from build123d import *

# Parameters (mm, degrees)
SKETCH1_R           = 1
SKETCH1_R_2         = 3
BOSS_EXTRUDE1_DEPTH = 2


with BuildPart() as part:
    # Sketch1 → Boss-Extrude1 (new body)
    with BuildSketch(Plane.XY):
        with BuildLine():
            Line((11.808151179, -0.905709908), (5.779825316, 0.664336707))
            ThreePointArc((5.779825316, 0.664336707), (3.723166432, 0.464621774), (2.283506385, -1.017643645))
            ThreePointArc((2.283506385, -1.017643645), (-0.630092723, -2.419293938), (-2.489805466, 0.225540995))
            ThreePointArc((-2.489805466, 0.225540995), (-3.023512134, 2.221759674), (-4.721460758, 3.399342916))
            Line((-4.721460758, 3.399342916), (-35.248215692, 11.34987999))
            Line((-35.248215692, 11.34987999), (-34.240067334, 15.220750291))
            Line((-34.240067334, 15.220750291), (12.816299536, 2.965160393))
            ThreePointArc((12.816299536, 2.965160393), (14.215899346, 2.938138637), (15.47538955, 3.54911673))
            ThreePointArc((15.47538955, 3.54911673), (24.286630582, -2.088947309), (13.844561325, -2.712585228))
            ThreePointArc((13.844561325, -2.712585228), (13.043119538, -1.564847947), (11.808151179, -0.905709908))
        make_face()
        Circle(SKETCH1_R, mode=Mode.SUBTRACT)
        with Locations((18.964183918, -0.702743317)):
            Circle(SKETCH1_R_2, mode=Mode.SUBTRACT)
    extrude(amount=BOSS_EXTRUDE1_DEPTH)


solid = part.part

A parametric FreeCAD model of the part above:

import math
import FreeCAD as App
import Part
import Sketcher
from FreeCAD import Vector

doc = App.newDocument("Part")
body = doc.addObject("PartDesign::Body", "Body")

# Sketch on XY plane
sketch1 = body.newObject("Sketcher::SketchObject", "Sketch")
sketch1.AttachmentSupport = (doc.getObject("XY_Plane"), [""])
sketch1.MapMode = "FlatFace"
sketch1.addGeometry(Part.LineSegment(Vector(5.779825, 0.664337, 0), Vector(11.808151, -0.90571, 0)), False)
sketch1.addGeometry(Part.ArcOfCircle(Part.Circle(Vector(11.05204, -3.808863, 0), Vector(0, 0, 1), 3), math.radians(21.43379), math.radians(75.401911)), False)
sketch1.addGeometry(Part.ArcOfCircle(Part.Circle(Vector(18.964184, -0.702743, 0), Vector(0, 0, 1), 5.5), math.radians(-158.56621), math.radians(129.370031)), False)
sketch1.addGeometry(Part.ArcOfCircle(Part.Circle(Vector(13.572411, 5.868313, 0), Vector(0, 0, 1), 3), math.radians(-104.598089), math.radians(-50.629969)), False)
sketch1.addGeometry(Part.LineSegment(Vector(12.8163, 2.96516, 0), Vector(-34.240067, 15.22075, 0)), False)
sketch1.addGeometry(Part.LineSegment(Vector(-34.240067, 15.22075, 0), Vector(-35.248216, 11.34988, 0)), False)
sketch1.addGeometry(Part.LineSegment(Vector(-35.248216, 11.34988, 0), Vector(-4.721461, 3.399343, 0)), False)
sketch1.addGeometry(Part.ArcOfCircle(Part.Circle(Vector(-5.477572, 0.49619, 0), Vector(0, 0, 1), 3), math.radians(-5.176056), math.radians(75.401911)), False)
sketch1.addGeometry(Part.ArcOfCircle(Part.Circle(Vector(0, 0, 0), Vector(0, 0, 1), 2.5), math.radians(174.823944), math.radians(335.979878)), False)
sketch1.addGeometry(Part.ArcOfCircle(Part.Circle(Vector(5.023714, -2.238816, 0), Vector(0, 0, 1), 3), math.radians(75.401911), math.radians(155.979878)), False)
sketch1.addGeometry(Part.Circle(Vector(18.964184, -0.702743, 0), Vector(0, 0, 1), 3), False)
sketch1.addGeometry(Part.Circle(Vector(0, 0, 0), Vector(0, 0, 1), 1), False)
sketch1.addConstraint(Sketcher.Constraint("Coincident", 0, 2, 1, 2))
sketch1.addConstraint(Sketcher.Constraint("Coincident", 1, 1, 2, 1))
sketch1.addConstraint(Sketcher.Constraint("Coincident", 2, 2, 3, 2))
sketch1.addConstraint(Sketcher.Constraint("Coincident", 3, 1, 4, 1))
sketch1.addConstraint(Sketcher.Constraint("Coincident", 4, 2, 5, 1))
sketch1.addConstraint(Sketcher.Constraint("Coincident", 5, 2, 6, 1))
sketch1.addConstraint(Sketcher.Constraint("Coincident", 6, 2, 7, 2))
sketch1.addConstraint(Sketcher.Constraint("Coincident", 7, 1, 8, 1))
sketch1.addConstraint(Sketcher.Constraint("Coincident", 8, 2, 9, 2))
sketch1.addConstraint(Sketcher.Constraint("Coincident", 9, 1, 0, 1))
sketch1.addConstraint(Sketcher.Constraint("Coincident", 8, 3, -1, 1))
sketch1.addConstraint(Sketcher.Constraint("Coincident", 11, 3, -1, 1))
sketch1.addConstraint(Sketcher.Constraint("Coincident", 10, 3, 2, 3))
sketch1.addConstraint(Sketcher.Constraint("Diameter", 10, 6.0))
sketch1.addConstraint(Sketcher.Constraint("Diameter", 11, 2.0))
sketch1.addConstraint(Sketcher.Constraint("Radius", 1, 3.0))
sketch1.addConstraint(Sketcher.Constraint("Radius", 3, 3.0))
sketch1.addConstraint(Sketcher.Constraint("Radius", 7, 3.0))
sketch1.addConstraint(Sketcher.Constraint("Radius", 9, 3.0))
sketch1.addConstraint(Sketcher.Constraint("Radius", 2, 5.5))
sketch1.addConstraint(Sketcher.Constraint("Radius", 8, 2.5))
sketch1.addConstraint(Sketcher.Constraint("Distance", 5, 4.0))
sketch1.addConstraint(Sketcher.Constraint("DistanceX", -1, 1, 3, 1, 12.8163))
sketch1.addConstraint(Sketcher.Constraint("DistanceY", 1, 1, 3, 3, 8.580898))
sketch1.addConstraint(Sketcher.Constraint("DistanceY", 1, 1, 2, 2, 6.261702))
sketch1.addConstraint(Sketcher.Constraint("DistanceY", 7, 1, 6, 2, 3.173802))
sketch1.addConstraint(Sketcher.Constraint("DistanceX", -1, 1, 1, 3, 11.05204))
sketch1.addConstraint(Sketcher.Constraint("DistanceX", -1, 1, 3, 3, 13.572411))
sketch1.addConstraint(Sketcher.Constraint("DistanceY", -1, 1, 7, 3, 0.49619))
sketch1.addConstraint(Sketcher.Constraint("DistanceX", -1, 1, 0, 2, 11.808151))
sketch1.addConstraint(Sketcher.Constraint("DistanceY", 0, 2, -1, 1, 0.90571))
sketch1.addConstraint(Sketcher.Constraint("DistanceX", -1, 1, 1, 1, 13.844561))
sketch1.addConstraint(Sketcher.Constraint("DistanceY", -1, 1, 4, 2, 15.22075))
sketch1.addConstraint(Sketcher.Constraint("DistanceY", -1, 1, 5, 2, 11.34988))
sketch1.addConstraint(Sketcher.Constraint("DistanceX", 6, 2, -1, 1, 4.721461))
sketch1.addConstraint(Sketcher.Constraint("DistanceY", 9, 3, 3, 3, 8.107129))
sketch1.addConstraint(Sketcher.Constraint("DistanceX", 4, 2, 9, 3, 39.263781))
sketch1.addConstraint(Sketcher.Constraint("DistanceX", 7, 1, 8, 2, 4.773312))
sketch1.addConstraint(Sketcher.Constraint("DistanceX", 9, 3, 9, 1, 0.756111))
pad1 = body.newObject("PartDesign::Pad", "Pad")
pad1.Profile = sketch1
pad1.Length = 2

doc.recompute()
